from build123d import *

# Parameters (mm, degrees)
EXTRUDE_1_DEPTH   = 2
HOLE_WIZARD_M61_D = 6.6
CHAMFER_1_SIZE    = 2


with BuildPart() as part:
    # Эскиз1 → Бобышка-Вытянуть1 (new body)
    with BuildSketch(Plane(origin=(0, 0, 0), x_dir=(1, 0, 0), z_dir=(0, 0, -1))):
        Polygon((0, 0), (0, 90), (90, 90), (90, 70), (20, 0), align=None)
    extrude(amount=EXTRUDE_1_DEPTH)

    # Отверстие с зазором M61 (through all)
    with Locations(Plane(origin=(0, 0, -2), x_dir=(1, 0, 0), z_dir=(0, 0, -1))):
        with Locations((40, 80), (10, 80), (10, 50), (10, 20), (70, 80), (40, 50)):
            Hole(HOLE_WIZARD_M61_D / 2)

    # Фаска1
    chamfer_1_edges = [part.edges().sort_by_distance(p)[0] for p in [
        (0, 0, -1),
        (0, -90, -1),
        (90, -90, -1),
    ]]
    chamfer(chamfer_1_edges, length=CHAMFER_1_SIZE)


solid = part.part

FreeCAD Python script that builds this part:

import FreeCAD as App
import Part
import Sketcher

V = App.Vector
Q = App.Units.Quantity


def edges_at(feature, points):
    """Names of the edges that pass closest to the given points."""
    edges = feature.Shape.Edges
    near = lambda p: min(range(len(edges)), key=lambda i: edges[i].distToShape(Part.Vertex(*p))[0])
    return sorted({f"Edge{near(p) + 1}" for p in points})


def add_polygon(sketch, points):
    """Adds a closed chain of lines whose ends are joined by coincident constraints."""
    first, n = sketch.GeometryCount, len(points)
    for a, b in zip(points, points[1:] + points[:1]):
        sketch.addGeometry(Part.LineSegment(App.Vector(*a, 0), App.Vector(*b, 0)), False)
    for i in range(n):
        sketch.addConstraint(Sketcher.Constraint("Coincident", first + i, 2, first + (i + 1) % n, 1))

doc = App.newDocument("Part")
params = doc.addObject("Spreadsheet::Sheet", "Params")
for row, (alias, value) in enumerate([
    ("sketch1_width", "20 mm"),
    ("sketch1_width2", "90 mm"),
    ("pad1_length", "2 mm"),
    ("sketch2_diameter", "6.6 mm"),
    ("hole_diameter", "6.6 mm"),
    ("chamfer_size", "2 mm"),
], start=1):
    params.set(f"A{row}", alias)
    params.set(f"B{row}", "=" + value)
    params.setAlias(f"B{row}", alias)

body = doc.addObject("PartDesign::Body", "Body")

# Sketch on XY plane
sketch1 = doc.addObject("Sketcher::SketchObject", "Sketch")
body.addObject(sketch1)
sketch1.AttachmentSupport = (doc.XY_Plane, [""])
sketch1.MapMode = "FlatFace"
add_polygon(sketch1, [(0, -90), (0, 0), (20, 0), (90, -70), (90, -90)])  # lines 0-4
sketch1.addConstraint(Sketcher.Constraint("Vertical", 0))
sketch1.addConstraint(Sketcher.Constraint("Horizontal", 1))
sketch1.addConstraint(Sketcher.Constraint("Vertical", 3))
sketch1.addConstraint(Sketcher.Constraint("Horizontal", 4))
sketch1.addConstraint(Sketcher.Constraint("Coincident", 0, 2, -1, 1))
sketch1.addConstraint(Sketcher.Constraint("Equal", 4, 0))
sketch1.addConstraint(Sketcher.Constraint("Equal", 1, 3))
sketch1.addConstraint(Sketcher.Constraint("DistanceX", 1, 1, 1, 2, Q("20 mm")))
sketch1.addConstraint(Sketcher.Constraint("DistanceX", 4, 2, 4, 1, Q("90 mm")))
sketch1.setExpression("Constraints[12]", "Params.sketch1_width")
sketch1.setExpression("Constraints[13]", "Params.sketch1_width2")
pad1 = doc.addObject("PartDesign::Pad", "Pad")
body.addObject(pad1)
pad1.Profile = sketch1
pad1.setExpression("Length", "Params.pad1_length")
pad1.Reversed = True

# Sketch on XY plane
sketch2 = doc.addObject("Sketcher::SketchObject", "Sketch001")
body.addObject(sketch2)
sketch2.AttachmentSupport = (doc.XY_Plane, [""])
sketch2.MapMode = "FlatFace"
sketch2.AttachmentOffset = App.Placement(V(0, 0, -2), App.Rotation())
sketch2.addGeometry(Part.Circle(V(40, -80, 0), V(0, 0, 1), 3.3), False)
sketch2.addGeometry(Part.Circle(V(10, -80, 0), V(0, 0, 1), 3.3), False)
sketch2.addGeometry(Part.Circle(V(10, -50, 0), V(0, 0, 1), 3.3), False)
sketch2.addGeometry(Part.Circle(V(10, -20, 0), V(0, 0, 1), 3.3), False)
sketch2.addGeometry(Part.Circle(V(70, -80, 0), V(0, 0, 1), 3.3), False)
sketch2.addGeometry(Part.Circle(V(40, -50, 0), V(0, 0, 1), 3.3), False)
sketch2.addConstraint(Sketcher.Constraint("Equal", 0, 1))
sketch2.addConstraint(Sketcher.Constraint("Equal", 1, 2))
sketch2.addConstraint(Sketcher.Constraint("Equal", 2, 3))
sketch2.addConstraint(Sketcher.Constraint("Equal", 3, 4))
sketch2.addConstraint(Sketcher.Constraint("Equal", 4, 5))
sketch2.addConstraint(Sketcher.Constraint("Horizontal", 0, 3, 1, 3))
sketch2.addConstraint(Sketcher.Constraint("Horizontal", 1, 3, 4, 3))
sketch2.addConstraint(Sketcher.Constraint("Horizontal", 2, 3, 5, 3))
sketch2.addConstraint(Sketcher.Constraint("Vertical", 1, 3, 2, 3))
sketch2.addConstraint(Sketcher.Constraint("Vertical", 2, 3, 3, 3))
sketch2.addConstraint(Sketcher.Constraint("Vertical", 0, 3, 5, 3))
sketch2.addConstraint(Sketcher.Constraint("Diameter", 0, Q("6.6 mm")))
sketch2.addConstraint(Sketcher.Constraint("DistanceX", -1, 1, 0, 3, Q("40 mm")))
sketch2.addConstraint(Sketcher.Constraint("DistanceY", 0, 3, -1, 1, Q("80 mm")))
sketch2.addConstraint(Sketcher.Constraint("DistanceX", -1, 1, 1, 3, Q("10 mm")))
sketch2.addConstraint(Sketcher.Constraint("DistanceY", 2, 3, -1, 1, Q("50 mm")))
sketch2.addConstraint(Sketcher.Constraint("DistanceY", 3, 3, -1, 1, Q("20 mm")))
sketch2.addConstraint(Sketcher.Constraint("DistanceX", -1, 1, 4, 3, Q("70 mm")))
sketch2.setExpression("Constraints[11]", "Params.sketch2_diameter")
doc.recompute()
hole = doc.addObject("PartDesign::Hole", "Hole")
body.addObject(hole)
hole.Profile = sketch2
hole.ThreadType = "None"
hole.setExpression("Diameter", "Params.hole_diameter")
hole.DepthType = "ThroughAll"
hole.Reversed = True
doc.recompute()

chamfer = doc.addObject("PartDesign::Chamfer", "Chamfer")
body.addObject(chamfer)
chamfer.Base = (hole, edges_at(hole, [(0, 0, -1), (0, -90, -1), (90, -90, -1)]))
chamfer.setExpression("Size", "Params.chamfer_size")

doc.recompute()
